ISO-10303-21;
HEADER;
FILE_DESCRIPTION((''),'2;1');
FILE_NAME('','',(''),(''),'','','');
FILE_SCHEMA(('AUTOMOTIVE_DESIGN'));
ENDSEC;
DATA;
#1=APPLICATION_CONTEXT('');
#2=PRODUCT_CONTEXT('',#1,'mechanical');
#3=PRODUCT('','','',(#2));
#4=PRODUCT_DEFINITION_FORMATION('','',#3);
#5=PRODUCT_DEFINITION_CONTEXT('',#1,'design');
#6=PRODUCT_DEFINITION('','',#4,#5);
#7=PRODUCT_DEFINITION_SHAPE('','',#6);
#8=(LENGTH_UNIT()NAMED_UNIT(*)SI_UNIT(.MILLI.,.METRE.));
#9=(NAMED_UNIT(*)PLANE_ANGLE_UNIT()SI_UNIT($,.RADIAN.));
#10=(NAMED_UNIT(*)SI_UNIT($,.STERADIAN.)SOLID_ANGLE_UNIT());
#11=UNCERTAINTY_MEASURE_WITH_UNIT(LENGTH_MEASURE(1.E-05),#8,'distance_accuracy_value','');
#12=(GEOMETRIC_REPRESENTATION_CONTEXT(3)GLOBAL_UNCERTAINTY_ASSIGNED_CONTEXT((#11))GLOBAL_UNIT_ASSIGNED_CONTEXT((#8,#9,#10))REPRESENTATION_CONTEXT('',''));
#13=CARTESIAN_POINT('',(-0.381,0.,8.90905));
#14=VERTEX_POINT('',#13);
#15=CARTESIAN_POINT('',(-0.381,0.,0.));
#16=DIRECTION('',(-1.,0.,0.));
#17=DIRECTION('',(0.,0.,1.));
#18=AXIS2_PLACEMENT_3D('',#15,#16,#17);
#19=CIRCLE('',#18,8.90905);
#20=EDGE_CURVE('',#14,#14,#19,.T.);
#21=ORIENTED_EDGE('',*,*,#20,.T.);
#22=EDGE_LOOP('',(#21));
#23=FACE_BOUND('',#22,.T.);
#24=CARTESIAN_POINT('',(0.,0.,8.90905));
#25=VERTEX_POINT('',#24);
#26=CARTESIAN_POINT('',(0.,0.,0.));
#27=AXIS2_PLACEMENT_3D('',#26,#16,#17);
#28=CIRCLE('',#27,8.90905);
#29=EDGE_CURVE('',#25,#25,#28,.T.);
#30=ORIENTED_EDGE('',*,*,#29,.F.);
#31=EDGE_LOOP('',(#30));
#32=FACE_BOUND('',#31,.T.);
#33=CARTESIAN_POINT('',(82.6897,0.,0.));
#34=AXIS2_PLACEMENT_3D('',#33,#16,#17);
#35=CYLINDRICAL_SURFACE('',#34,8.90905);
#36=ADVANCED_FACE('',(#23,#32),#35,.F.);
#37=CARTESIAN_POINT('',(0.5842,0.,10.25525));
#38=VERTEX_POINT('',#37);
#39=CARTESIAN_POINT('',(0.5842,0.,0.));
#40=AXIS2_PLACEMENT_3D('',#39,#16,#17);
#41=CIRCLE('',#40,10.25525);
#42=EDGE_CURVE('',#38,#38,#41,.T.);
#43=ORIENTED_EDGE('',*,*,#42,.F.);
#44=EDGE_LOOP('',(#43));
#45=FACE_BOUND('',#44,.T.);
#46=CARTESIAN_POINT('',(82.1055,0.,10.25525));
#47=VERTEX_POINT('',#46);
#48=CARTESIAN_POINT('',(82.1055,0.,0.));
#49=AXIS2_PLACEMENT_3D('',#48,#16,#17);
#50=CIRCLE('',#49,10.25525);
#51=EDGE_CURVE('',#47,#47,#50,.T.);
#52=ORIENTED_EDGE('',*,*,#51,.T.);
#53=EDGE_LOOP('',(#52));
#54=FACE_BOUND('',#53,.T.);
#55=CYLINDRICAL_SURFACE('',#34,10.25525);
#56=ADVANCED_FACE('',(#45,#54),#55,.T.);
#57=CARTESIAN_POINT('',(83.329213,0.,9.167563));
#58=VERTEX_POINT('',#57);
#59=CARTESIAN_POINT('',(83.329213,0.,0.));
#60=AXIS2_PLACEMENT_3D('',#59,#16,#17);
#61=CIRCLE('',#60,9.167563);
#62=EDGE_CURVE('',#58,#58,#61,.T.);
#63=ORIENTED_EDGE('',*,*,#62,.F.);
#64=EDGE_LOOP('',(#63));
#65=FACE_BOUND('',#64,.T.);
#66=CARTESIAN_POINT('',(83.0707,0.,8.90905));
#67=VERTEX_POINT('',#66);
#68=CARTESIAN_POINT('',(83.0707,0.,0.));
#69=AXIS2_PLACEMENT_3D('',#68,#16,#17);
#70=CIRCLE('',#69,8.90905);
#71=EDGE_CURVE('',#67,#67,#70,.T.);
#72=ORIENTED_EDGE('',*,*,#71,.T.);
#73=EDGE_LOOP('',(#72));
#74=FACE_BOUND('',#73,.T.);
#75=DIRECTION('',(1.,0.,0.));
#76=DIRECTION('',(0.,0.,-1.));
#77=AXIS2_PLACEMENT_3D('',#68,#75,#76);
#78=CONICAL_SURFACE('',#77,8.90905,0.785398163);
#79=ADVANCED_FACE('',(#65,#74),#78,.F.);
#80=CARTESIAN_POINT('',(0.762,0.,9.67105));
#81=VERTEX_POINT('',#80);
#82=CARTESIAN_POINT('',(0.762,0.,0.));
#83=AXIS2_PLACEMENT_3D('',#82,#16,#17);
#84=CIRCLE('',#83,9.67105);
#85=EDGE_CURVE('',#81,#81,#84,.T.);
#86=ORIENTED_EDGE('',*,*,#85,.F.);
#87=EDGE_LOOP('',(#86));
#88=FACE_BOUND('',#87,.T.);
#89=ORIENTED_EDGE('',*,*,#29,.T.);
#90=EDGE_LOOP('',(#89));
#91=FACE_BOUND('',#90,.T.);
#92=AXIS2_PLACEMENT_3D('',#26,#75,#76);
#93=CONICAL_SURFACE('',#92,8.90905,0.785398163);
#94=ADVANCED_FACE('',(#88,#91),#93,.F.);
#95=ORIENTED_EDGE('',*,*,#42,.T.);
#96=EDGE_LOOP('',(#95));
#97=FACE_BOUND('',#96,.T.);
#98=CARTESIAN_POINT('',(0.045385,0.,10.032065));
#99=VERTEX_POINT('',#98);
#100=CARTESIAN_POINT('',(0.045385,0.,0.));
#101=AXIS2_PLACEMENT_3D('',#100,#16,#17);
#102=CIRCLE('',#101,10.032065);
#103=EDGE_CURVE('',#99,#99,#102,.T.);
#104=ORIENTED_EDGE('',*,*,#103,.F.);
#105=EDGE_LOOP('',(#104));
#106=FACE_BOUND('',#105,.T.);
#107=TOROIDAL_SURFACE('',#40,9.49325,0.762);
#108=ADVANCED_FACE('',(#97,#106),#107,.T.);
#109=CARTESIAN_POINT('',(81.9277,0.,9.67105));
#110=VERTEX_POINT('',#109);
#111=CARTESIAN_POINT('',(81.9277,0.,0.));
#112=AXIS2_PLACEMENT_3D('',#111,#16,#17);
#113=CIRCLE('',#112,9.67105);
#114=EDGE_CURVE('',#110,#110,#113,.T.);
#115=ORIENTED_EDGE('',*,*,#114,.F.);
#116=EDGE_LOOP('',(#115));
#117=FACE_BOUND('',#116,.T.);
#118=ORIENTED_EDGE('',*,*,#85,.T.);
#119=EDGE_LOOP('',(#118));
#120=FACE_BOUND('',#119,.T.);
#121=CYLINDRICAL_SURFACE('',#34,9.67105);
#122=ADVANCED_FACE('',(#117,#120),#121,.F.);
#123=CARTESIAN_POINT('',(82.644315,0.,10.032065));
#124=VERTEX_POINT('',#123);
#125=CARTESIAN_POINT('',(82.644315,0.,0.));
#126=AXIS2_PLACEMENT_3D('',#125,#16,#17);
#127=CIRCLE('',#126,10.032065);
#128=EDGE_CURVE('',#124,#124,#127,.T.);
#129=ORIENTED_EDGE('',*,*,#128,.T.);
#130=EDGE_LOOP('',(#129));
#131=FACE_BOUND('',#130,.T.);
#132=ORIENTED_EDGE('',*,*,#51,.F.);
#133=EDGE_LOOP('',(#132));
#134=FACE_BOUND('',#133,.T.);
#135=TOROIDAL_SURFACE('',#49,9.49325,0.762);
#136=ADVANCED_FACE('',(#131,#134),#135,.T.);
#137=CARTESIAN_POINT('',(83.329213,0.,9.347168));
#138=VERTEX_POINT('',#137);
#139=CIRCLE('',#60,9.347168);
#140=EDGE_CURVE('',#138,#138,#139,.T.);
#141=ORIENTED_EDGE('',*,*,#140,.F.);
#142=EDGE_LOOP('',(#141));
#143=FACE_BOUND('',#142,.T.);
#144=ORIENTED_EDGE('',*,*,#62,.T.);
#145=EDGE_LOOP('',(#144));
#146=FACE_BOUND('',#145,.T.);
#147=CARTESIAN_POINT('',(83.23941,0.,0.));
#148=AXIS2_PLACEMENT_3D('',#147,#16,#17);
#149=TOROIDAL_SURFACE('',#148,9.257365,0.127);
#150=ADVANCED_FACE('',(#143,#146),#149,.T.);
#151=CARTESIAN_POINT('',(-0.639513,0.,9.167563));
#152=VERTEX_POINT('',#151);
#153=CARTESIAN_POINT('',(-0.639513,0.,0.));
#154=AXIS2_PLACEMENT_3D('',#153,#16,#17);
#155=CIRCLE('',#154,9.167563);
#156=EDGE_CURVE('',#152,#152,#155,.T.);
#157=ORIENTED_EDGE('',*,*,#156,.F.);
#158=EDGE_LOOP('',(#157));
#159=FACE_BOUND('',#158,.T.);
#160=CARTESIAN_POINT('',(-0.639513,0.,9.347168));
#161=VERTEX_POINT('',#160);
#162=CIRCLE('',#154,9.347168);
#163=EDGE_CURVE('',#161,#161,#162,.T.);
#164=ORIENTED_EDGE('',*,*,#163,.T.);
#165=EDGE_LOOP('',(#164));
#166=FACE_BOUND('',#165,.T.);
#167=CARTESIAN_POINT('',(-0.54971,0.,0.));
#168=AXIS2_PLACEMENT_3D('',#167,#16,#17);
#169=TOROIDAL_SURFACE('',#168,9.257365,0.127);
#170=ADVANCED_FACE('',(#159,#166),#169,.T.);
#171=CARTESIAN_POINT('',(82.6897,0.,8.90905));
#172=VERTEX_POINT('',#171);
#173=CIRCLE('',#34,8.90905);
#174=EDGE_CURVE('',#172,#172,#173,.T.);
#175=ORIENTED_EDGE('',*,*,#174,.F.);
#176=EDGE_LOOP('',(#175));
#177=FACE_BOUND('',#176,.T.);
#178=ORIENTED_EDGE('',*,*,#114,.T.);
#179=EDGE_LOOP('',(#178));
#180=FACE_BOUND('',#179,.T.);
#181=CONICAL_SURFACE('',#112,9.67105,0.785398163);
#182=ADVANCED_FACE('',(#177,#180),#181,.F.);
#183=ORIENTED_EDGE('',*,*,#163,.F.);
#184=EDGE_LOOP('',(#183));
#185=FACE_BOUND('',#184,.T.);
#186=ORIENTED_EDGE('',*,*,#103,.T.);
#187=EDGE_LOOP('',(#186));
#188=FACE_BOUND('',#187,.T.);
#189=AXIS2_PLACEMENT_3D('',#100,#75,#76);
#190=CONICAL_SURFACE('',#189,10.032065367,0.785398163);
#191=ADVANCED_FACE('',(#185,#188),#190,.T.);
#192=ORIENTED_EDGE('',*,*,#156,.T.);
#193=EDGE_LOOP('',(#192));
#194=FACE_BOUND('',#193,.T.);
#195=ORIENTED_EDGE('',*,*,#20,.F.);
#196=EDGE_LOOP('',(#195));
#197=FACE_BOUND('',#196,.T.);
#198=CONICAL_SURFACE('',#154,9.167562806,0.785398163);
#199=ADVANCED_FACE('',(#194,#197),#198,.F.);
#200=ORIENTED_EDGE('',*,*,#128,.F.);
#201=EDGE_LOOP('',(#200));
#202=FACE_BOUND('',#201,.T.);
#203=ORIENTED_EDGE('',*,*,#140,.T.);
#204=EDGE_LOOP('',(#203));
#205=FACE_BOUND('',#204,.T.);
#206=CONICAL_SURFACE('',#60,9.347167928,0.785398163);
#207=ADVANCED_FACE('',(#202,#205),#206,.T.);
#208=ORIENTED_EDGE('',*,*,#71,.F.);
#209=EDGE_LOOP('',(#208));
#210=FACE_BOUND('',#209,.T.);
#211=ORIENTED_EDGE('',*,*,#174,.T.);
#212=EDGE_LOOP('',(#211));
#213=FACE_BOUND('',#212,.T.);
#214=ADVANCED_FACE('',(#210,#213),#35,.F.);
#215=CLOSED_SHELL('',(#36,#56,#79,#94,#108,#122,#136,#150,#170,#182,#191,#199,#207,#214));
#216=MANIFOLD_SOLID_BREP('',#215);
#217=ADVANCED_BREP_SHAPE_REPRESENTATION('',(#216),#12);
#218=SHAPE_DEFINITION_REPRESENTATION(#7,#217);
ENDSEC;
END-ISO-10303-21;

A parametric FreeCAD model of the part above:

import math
import FreeCAD as App
import Part
import Sketcher
Q = App.Units.Quantity

doc = App.newDocument("Part")
body = doc.addObject("PartDesign::Body", "Body")

sketch1 = body.newObject("Sketcher::SketchObject", "Sketch")
sketch1.AttachmentSupport = (doc.getObject("XY_Plane"), [""])
sketch1.MapMode = "FlatFace"
sketch1.addGeometry(Part.LineSegment(App.Vector(-0.64, 9.17, 0), App.Vector(-0.38, 8.91, 0)), False)
sketch1.addGeometry(Part.LineSegment(App.Vector(-0.38, 8.91, 0), App.Vector(0, 8.91, 0)), False)
sketch1.addGeometry(Part.LineSegment(App.Vector(0, 8.91, 0), App.Vector(0.76, 9.67, 0)), False)
sketch1.addGeometry(Part.LineSegment(App.Vector(0.76, 9.67, 0), App.Vector(81.93, 9.67, 0)), False)
sketch1.addGeometry(Part.LineSegment(App.Vector(81.93, 9.67, 0), App.Vector(82.69, 8.91, 0)), False)
sketch1.addGeometry(Part.LineSegment(App.Vector(82.69, 8.91, 0), App.Vector(83.07, 8.91, 0)), False)
sketch1.addGeometry(Part.LineSegment(App.Vector(83.07, 8.91, 0), App.Vector(83.33, 9.17, 0)), False)
sketch1.addGeometry(Part.ArcOfCircle(Part.Circle(App.Vector(83.24, 9.26, 0), App.Vector(0, 0, 1), 0.13), math.radians(-45), math.radians(45)), False)
sketch1.addGeometry(Part.LineSegment(App.Vector(83.33, 9.35, 0), App.Vector(82.64, 10.03, 0)), False)
sketch1.addGeometry(Part.ArcOfCircle(Part.Circle(App.Vector(82.11, 9.49, 0), App.Vector(0, 0, 1), 0.76), math.radians(45), math.radians(90)), False)
sketch1.addGeometry(Part.LineSegment(App.Vector(82.11, 10.26, 0), App.Vector(0.58, 10.26, 0)), False)
sketch1.addGeometry(Part.ArcOfCircle(Part.Circle(App.Vector(0.58, 9.49, 0), App.Vector(0, 0, 1), 0.76), math.radians(90), math.radians(135)), False)
sketch1.addGeometry(Part.LineSegment(App.Vector(0.05, 10.03, 0), App.Vector(-0.64, 9.35, 0)), False)
sketch1.addGeometry(Part.ArcOfCircle(Part.Circle(App.Vector(-0.55, 9.26, 0), App.Vector(0, 0, 1), 0.13), math.radians(135), math.radians(225)), False)
sketch1.addConstraint(Sketcher.Constraint("Coincident", 0, 2, 1, 1))
sketch1.addConstraint(Sketcher.Constraint("Coincident", 1, 2, 2, 1))
sketch1.addConstraint(Sketcher.Constraint("Coincident", 2, 2, 3, 1))
sketch1.addConstraint(Sketcher.Constraint("Coincident", 3, 2, 4, 1))
sketch1.addConstraint(Sketcher.Constraint("Coincident", 4, 2, 5, 1))
sketch1.addConstraint(Sketcher.Constraint("Coincident", 5, 2, 6, 1))
sketch1.addConstraint(Sketcher.Constraint("Tangent", 6, 2, 7, 1))
sketch1.addConstraint(Sketcher.Constraint("Tangent", 7, 2, 8, 1))
sketch1.addConstraint(Sketcher.Constraint("Tangent", 8, 2, 9, 1))
sketch1.addConstraint(Sketcher.Constraint("Tangent", 9, 2, 10, 1))
sketch1.addConstraint(Sketcher.Constraint("Tangent", 10, 2, 11, 1))
sketch1.addConstraint(Sketcher.Constraint("Tangent", 11, 2, 12, 1))
sketch1.addConstraint(Sketcher.Constraint("Tangent", 12, 2, 13, 1))
sketch1.addConstraint(Sketcher.Constraint("Tangent", 13, 2, 0, 1))
sketch1.addConstraint(Sketcher.Constraint("Horizontal", 1))
sketch1.addConstraint(Sketcher.Constraint("Horizontal", 3))
sketch1.addConstraint(Sketcher.Constraint("Horizontal", 5))
sketch1.addConstraint(Sketcher.Constraint("Horizontal", 10))
sketch1.addConstraint(Sketcher.Constraint("Equal", 9, 11))
sketch1.addConstraint(Sketcher.Constraint("Equal", 7, 13))
sketch1.addConstraint(Sketcher.Constraint("PointOnObject", 1, 2, -2))
sketch1.addConstraint(Sketcher.Constraint("Perpendicular", 0, 2))
sketch1.addConstraint(Sketcher.Constraint("Perpendicular", 2, 4))
sketch1.addConstraint(Sketcher.Constraint("Perpendicular", 4, 6))
sketch1.addConstraint(Sketcher.Constraint("Perpendicular", 6, 8))
sketch1.addConstraint(Sketcher.Constraint("Perpendicular", 8, 12))
sketch1.addConstraint(Sketcher.Constraint("Horizontal", 7, 3, 13, 3))
sketch1.addConstraint(Sketcher.Constraint("Horizontal", 1, 2, 4, 2))
sketch1.addConstraint(Sketcher.Constraint("Horizontal", 8, 2, 11, 2))
sketch1.addConstraint(Sketcher.Constraint("Equal", 1, 5))
sketch1.addConstraint(Sketcher.Constraint("Radius", 9, Q("0.03 in")))
sketch1.addConstraint(Sketcher.Constraint("Radius", 7, Q("0.005 in")))
sketch1.addConstraint(Sketcher.Constraint("DistanceX", 1, 1, 1, 2, Q("0.015 in")))
sketch1.addConstraint(Sketcher.Constraint("DistanceX", -1, 1, 2, 2, Q("0.03 in")))
sketch1.addConstraint(Sketcher.Constraint("DistanceX", 3, 1, 3, 2, Q("3.1955 in")))
sketch1.addConstraint(Sketcher.Constraint("DistanceX", 10, 2, 10, 1, Q("3.2095 in")))
sketch1.addConstraint(Sketcher.Constraint("DistanceY", 0, 2, 11, 3, Q("0.023 in")))
sketch1.addConstraint(Sketcher.Constraint("DistanceY", -1, 1, 9, 3, 9.49325))
revolution = body.newObject("PartDesign::Revolution", "Revolution")
revolution.Profile = sketch1
revolution.ReferenceAxis = (sketch1, ["H_Axis"])
revolution.Angle = 360

doc.recompute()
